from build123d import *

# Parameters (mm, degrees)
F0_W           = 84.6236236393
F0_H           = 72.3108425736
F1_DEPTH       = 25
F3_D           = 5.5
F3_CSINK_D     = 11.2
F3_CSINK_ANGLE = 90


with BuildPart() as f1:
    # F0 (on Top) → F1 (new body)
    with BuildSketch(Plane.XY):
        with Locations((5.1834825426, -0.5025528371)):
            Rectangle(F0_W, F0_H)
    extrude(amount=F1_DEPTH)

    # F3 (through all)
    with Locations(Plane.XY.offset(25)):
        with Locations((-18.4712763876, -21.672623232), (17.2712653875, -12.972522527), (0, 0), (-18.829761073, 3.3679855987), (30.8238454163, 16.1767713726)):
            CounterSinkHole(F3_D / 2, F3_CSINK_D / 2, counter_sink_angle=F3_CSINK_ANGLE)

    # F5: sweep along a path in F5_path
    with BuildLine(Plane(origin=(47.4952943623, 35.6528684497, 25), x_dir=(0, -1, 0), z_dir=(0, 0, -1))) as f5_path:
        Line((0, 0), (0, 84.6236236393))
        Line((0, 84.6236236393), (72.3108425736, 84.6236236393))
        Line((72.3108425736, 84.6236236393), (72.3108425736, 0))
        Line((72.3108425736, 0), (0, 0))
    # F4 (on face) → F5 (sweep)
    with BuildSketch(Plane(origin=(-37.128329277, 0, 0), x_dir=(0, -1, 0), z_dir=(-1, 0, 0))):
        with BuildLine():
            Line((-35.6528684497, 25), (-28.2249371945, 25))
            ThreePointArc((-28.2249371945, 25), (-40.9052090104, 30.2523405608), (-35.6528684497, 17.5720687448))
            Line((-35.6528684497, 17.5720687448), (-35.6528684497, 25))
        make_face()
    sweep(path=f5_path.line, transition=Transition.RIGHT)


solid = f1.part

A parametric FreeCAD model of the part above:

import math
import FreeCAD as App
import Part
import Sketcher
from FreeCAD import Vector
Q = App.Units.Quantity

doc = App.newDocument("Part")
body = doc.addObject("PartDesign::Body", "Body")

# Sketch on XY plane
sketch1 = body.newObject("Sketcher::SketchObject", "Sketch")
sketch1.AttachmentSupport = (doc.getObject("XY_Plane"), [""])
sketch1.MapMode = "FlatFace"
sketch1.addGeometry([
    Part.LineSegment(Vector(-37, 36, 0), Vector(-37, -37, 0)),
    Part.LineSegment(Vector(-37, -37, 0), Vector(47, -37, 0)),
    Part.LineSegment(Vector(47, -37, 0), Vector(47, 36, 0)),
    Part.LineSegment(Vector(47, 36, 0), Vector(-37, 36, 0)),
], False)
sketch1.addConstraint([
    Sketcher.Constraint("Coincident", 0, 2, 1, 1),
    Sketcher.Constraint("Coincident", 1, 2, 2, 1),
    Sketcher.Constraint("Coincident", 2, 2, 3, 1),
    Sketcher.Constraint("Coincident", 3, 2, 0, 1),
    Sketcher.Constraint("Vertical", 0),
    Sketcher.Constraint("Horizontal", 1),
    Sketcher.Constraint("Vertical", 2),
    Sketcher.Constraint("Horizontal", 3),
    Sketcher.Constraint("DistanceX", 1, 1, 1, 2, Q("84.623624 mm")),
    Sketcher.Constraint("DistanceY", 0, 2, 0, 1, Q("72.310843 mm")),
    Sketcher.Constraint("DistanceX", 0, 2, -1, 1, Q("37.128329 mm")),
    Sketcher.Constraint("DistanceY", -1, 1, 2, 2, Q("35.652868 mm")),
])
pad1 = body.newObject("PartDesign::Pad", "Pad")
pad1.Profile = sketch1
pad1.Length = 25

# Sketch on XY plane
sketch2 = body.newObject("Sketcher::SketchObject", "Sketch001")
sketch2.AttachmentSupport = (doc.getObject("XY_Plane"), [""])
sketch2.MapMode = "FlatFace"
sketch2.AttachmentOffset = App.Placement(Vector(0, 0, 25), App.Rotation())
sketch2.addGeometry([
    Part.Circle(Vector(-18.5, -21.7, 0), Vector(0, 0, 1), 2.8),  # 0
    Part.Circle(Vector(17.3, -13, 0), Vector(0, 0, 1), 2.8),  # 1
    Part.Circle(Vector(0, 0, 0), Vector(0, 0, 1), 2.8),  # 2
    Part.Circle(Vector(-18.8, 3.4, 0), Vector(0, 0, 1), 2.8),  # 3
    Part.Circle(Vector(30.8, 16.2, 0), Vector(0, 0, 1), 2.8),  # 4
], False)
sketch2.addConstraint([
    Sketcher.Constraint("Coincident", 2, 3, -1, 1),
    Sketcher.Constraint("Equal", 0, 1),
    Sketcher.Constraint("Equal", 1, 2),
    Sketcher.Constraint("Equal", 2, 3),
    Sketcher.Constraint("Equal", 3, 4),
    Sketcher.Constraint("Diameter", 0, Q("5.5 mm")),
    Sketcher.Constraint("DistanceY", 0, 3, 1, 3, Q("8.700101 mm")),
    Sketcher.Constraint("DistanceX", 3, 3, -1, 1, Q("18.829761 mm")),
    Sketcher.Constraint("DistanceY", -1, 1, 4, 3, Q("16.176771 mm")),
    Sketcher.Constraint("DistanceX", 0, 3, 1, 3, Q("35.742542 mm")),
    Sketcher.Constraint("DistanceY", 0, 3, 3, 3, Q("25.040609 mm")),
    Sketcher.Constraint("DistanceX", 1, 3, 4, 3, Q("13.55258 mm")),
    Sketcher.Constraint("DistanceX", 0, 3, -1, 1, Q("18.471276 mm")),
    Sketcher.Constraint("DistanceY", 0, 3, -1, 1, Q("21.672623 mm")),
])
doc.recompute()
hole = body.newObject("PartDesign::Hole", "Hole")
hole.Profile = sketch2
hole.ThreadType = "None"
hole.Diameter = 5.5
hole.DepthType = "ThroughAll"
hole.HoleCutType = "Countersink"
hole.HoleCutDiameter = 11.2
hole.HoleCutCountersinkAngle = 90

# Sketch on YZ plane
sketch3 = body.newObject("Sketcher::SketchObject", "Sketch002")
sketch3.AttachmentSupport = (doc.getObject("YZ_Plane"), [""])
sketch3.MapMode = "FlatFace"
sketch3.AttachmentOffset = App.Placement(Vector(0, 0, -37.128329), App.Rotation())
sketch3.addGeometry([
    Part.LineSegment(Vector(36, 25, 0), Vector(28, 25, 0)),
    Part.ArcOfCircle(Part.Circle(Vector(36, 25, 0), Vector(0, 0, 1), 7), math.radians(-90), math.radians(180)),
    Part.LineSegment(Vector(36, 18, 0), Vector(36, 25, 0)),
], False)
sketch3.addConstraint([
    Sketcher.Constraint("Coincident", 0, 2, 1, 2),
    Sketcher.Constraint("Coincident", 1, 1, 2, 1),
    Sketcher.Constraint("Coincident", 2, 2, 0, 1),
    Sketcher.Constraint("Horizontal", 0),
    Sketcher.Constraint("Vertical", 2),
    Sketcher.Constraint("Coincident", 2, 2, 1, 3),
    Sketcher.Constraint("DistanceY", -1, 1, 1, 3, Q("25 mm")),
    Sketcher.Constraint("Radius", 1, Q("7.427931 mm")),
    Sketcher.Constraint("DistanceX", -1, 1, 1, 3, Q("35.652868 mm")),
])

# Sketch on XY plane
sketch4 = body.newObject("Sketcher::SketchObject", "Sketch003")
sketch4.AttachmentSupport = (doc.getObject("XY_Plane"), [""])
sketch4.MapMode = "FlatFace"
sketch4.AttachmentOffset = App.Placement(Vector(0, 0, 25), App.Rotation())
sketch4.addGeometry([
    Part.LineSegment(Vector(47, 36, 0), Vector(-37, 36, 0)),
    Part.LineSegment(Vector(-37, 36, 0), Vector(-37, -37, 0)),
    Part.LineSegment(Vector(-37, -37, 0), Vector(47, -37, 0)),
    Part.LineSegment(Vector(47, -37, 0), Vector(47, 36, 0)),
], False)
sketch4.addConstraint([
    Sketcher.Constraint("Coincident", 0, 2, 1, 1),
    Sketcher.Constraint("Coincident", 1, 2, 2, 1),
    Sketcher.Constraint("Coincident", 2, 2, 3, 1),
    Sketcher.Constraint("Coincident", 3, 2, 0, 1),
    Sketcher.Constraint("Horizontal", 0),
    Sketcher.Constraint("Vertical", 1),
    Sketcher.Constraint("Horizontal", 2),
    Sketcher.Constraint("Vertical", 3),
    Sketcher.Constraint("DistanceX", 0, 2, 0, 1, Q("84.623624 mm")),
    Sketcher.Constraint("DistanceY", 1, 2, 1, 1, Q("72.310843 mm")),
    Sketcher.Constraint("DistanceX", 0, 2, -1, 1, Q("37.128329 mm")),
    Sketcher.Constraint("DistanceY", -1, 1, 0, 2, Q("35.652868 mm")),
])
doc.recompute()

additivepipe = body.newObject("PartDesign::AdditivePipe", "AdditivePipe")
additivepipe.Profile = sketch3
additivepipe.Spine = (sketch4, ["Edge1", "Edge2", "Edge3", "Edge4"])
additivepipe.Transition = "Right corner"

doc.recompute()
